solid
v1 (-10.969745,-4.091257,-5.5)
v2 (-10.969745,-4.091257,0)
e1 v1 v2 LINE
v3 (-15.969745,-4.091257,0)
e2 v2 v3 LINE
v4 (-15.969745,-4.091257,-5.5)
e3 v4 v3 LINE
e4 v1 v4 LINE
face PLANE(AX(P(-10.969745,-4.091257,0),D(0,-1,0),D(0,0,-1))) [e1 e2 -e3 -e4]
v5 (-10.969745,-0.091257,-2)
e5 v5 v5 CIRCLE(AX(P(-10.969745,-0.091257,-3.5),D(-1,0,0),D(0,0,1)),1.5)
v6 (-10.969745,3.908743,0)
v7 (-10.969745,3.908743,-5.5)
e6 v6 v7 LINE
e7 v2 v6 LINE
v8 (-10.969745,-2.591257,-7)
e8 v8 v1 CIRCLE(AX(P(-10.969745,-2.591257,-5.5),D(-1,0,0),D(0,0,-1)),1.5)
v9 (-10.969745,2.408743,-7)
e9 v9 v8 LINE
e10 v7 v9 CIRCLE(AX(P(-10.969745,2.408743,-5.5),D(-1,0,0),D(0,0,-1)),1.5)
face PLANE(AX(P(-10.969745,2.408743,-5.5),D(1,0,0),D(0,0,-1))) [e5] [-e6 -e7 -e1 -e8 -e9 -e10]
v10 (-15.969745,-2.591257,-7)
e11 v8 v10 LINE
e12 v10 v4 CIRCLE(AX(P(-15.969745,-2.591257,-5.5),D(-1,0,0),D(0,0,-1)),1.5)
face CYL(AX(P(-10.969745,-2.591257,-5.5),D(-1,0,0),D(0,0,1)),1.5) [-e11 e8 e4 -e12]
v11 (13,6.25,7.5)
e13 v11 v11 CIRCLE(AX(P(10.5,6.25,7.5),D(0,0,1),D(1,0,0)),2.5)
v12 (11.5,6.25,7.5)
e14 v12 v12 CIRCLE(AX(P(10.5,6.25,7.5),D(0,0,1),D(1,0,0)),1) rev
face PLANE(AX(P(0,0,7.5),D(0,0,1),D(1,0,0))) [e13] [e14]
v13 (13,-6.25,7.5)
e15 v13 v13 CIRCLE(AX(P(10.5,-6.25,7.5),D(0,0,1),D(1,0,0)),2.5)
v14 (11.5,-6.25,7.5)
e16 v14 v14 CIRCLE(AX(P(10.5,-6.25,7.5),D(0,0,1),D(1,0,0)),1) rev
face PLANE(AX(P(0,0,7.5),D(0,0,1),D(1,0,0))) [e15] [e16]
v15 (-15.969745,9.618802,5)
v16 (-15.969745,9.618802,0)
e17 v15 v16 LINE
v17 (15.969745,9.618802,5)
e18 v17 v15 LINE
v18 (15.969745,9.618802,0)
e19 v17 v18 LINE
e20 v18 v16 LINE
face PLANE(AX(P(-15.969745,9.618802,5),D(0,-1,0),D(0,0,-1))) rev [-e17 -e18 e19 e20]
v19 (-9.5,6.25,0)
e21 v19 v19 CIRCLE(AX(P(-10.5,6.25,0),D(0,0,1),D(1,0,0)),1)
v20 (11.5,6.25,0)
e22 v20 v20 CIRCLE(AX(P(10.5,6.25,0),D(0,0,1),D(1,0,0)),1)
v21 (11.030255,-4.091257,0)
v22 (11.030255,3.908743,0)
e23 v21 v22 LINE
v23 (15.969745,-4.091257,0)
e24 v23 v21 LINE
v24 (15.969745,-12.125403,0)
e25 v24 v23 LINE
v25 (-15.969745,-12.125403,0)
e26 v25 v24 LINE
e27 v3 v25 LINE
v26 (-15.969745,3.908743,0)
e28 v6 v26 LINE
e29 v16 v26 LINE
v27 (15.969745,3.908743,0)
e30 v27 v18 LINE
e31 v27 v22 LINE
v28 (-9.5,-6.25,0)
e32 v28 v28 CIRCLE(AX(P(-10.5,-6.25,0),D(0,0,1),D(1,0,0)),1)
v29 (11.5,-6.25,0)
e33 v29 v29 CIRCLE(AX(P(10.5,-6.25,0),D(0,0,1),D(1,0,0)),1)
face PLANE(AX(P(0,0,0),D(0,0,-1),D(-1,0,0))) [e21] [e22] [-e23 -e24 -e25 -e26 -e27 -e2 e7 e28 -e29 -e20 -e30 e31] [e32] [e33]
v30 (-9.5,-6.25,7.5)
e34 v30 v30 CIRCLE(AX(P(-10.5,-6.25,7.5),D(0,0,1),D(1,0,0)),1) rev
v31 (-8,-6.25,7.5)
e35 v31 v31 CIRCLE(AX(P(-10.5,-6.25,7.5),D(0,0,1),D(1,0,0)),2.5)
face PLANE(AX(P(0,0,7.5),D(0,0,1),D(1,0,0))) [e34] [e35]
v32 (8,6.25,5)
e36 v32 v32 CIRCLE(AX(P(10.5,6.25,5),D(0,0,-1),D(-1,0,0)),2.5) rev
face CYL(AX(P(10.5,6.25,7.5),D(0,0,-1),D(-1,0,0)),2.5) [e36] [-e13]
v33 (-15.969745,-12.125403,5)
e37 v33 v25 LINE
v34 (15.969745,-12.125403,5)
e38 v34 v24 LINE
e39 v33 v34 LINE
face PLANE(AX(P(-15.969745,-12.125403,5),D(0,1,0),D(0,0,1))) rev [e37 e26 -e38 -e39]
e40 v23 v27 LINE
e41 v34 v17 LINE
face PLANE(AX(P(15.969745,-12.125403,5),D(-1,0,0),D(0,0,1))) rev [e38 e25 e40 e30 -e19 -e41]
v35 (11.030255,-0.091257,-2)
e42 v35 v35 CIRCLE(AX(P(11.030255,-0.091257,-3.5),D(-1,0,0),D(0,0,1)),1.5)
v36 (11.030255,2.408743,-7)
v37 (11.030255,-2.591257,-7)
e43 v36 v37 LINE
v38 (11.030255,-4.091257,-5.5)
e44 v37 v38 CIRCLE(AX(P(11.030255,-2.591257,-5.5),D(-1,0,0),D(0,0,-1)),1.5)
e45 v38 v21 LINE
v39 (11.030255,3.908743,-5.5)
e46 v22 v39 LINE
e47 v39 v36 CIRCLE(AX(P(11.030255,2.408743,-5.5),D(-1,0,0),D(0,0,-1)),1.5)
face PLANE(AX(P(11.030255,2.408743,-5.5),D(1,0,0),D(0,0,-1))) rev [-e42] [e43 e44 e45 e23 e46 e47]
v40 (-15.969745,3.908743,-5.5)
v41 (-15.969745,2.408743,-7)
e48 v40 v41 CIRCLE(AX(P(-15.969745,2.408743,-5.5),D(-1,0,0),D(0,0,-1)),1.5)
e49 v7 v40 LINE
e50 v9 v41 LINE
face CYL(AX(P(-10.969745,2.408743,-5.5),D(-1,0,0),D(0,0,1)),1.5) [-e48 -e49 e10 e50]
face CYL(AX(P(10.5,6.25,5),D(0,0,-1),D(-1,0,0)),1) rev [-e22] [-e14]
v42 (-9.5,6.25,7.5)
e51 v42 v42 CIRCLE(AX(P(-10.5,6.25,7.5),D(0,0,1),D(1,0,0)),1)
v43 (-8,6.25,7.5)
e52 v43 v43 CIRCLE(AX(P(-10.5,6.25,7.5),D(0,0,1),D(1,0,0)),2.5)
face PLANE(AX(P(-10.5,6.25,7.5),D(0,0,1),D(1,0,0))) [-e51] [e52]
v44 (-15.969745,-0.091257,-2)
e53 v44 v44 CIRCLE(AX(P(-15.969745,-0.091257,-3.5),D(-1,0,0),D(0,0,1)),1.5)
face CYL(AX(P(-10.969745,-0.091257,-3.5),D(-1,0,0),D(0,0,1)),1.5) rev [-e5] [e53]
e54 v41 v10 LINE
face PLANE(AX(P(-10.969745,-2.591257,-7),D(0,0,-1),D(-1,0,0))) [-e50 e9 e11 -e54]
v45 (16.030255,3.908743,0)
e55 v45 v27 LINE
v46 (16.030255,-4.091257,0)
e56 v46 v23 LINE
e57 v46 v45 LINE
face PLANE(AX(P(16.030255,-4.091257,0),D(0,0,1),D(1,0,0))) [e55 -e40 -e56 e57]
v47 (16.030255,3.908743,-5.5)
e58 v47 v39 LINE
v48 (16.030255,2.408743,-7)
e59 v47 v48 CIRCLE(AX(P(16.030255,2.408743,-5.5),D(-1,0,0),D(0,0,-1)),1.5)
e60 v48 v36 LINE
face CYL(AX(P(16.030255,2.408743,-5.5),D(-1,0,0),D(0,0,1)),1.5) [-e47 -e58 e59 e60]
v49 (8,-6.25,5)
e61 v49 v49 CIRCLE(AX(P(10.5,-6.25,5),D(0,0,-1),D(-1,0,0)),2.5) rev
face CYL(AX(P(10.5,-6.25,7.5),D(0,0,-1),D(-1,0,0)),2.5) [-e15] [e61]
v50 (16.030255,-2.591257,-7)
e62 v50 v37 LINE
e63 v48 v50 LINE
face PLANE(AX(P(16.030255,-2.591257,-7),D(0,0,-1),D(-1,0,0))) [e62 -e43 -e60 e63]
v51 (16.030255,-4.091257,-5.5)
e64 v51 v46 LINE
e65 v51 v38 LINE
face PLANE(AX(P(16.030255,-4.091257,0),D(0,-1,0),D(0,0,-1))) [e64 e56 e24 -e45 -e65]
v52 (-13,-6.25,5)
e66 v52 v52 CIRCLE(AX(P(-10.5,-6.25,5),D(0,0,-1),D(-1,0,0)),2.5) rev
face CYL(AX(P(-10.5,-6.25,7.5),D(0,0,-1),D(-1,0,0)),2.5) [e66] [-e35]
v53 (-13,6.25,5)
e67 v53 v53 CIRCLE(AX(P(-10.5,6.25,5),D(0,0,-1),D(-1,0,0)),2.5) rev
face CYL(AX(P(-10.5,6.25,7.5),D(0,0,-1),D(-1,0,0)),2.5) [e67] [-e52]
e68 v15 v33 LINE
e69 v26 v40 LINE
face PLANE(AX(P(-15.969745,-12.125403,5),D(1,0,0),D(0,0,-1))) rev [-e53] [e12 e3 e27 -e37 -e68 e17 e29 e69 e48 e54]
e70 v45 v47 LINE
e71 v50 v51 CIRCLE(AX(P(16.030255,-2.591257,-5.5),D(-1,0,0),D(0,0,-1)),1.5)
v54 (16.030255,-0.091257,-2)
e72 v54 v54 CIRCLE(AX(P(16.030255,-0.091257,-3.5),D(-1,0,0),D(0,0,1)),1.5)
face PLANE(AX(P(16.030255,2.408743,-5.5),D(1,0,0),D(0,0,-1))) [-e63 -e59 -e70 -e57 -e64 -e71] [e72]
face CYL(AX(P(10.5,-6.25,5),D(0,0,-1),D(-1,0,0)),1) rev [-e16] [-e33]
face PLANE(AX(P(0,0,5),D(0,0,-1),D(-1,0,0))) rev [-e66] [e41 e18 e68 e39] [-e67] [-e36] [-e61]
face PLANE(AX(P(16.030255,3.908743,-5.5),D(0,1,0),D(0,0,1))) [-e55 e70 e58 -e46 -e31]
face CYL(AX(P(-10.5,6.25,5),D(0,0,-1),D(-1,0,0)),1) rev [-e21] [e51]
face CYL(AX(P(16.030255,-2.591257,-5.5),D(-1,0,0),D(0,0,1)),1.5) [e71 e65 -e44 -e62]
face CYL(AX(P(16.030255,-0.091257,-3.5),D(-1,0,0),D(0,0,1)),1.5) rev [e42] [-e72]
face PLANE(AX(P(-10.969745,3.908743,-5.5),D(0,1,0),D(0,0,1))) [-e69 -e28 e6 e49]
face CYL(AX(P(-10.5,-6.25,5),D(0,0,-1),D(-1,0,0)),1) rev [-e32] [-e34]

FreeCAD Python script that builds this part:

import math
import FreeCAD as App
import Part
import Sketcher

V = App.Vector


def add_polygon(sketch, points):
    """Adds a closed chain of lines whose ends are joined by coincident constraints."""
    first, n = sketch.GeometryCount, len(points)
    for a, b in zip(points, points[1:] + points[:1]):
        sketch.addGeometry(Part.LineSegment(App.Vector(*a, 0), App.Vector(*b, 0)), False)
    for i in range(n):
        sketch.addConstraint(Sketcher.Constraint("Coincident", first + i, 2, first + (i + 1) % n, 1))

doc = App.newDocument("Part")
body = doc.addObject("PartDesign::Body", "Body")

sketch1 = body.newObject("Sketcher::SketchObject", "Sketch")
sketch1.AttachmentSupport = (doc.getObject("XY_Plane"), [""])
sketch1.MapMode = "FlatFace"
add_polygon(sketch1, [(-15.969745, 9.618802), (-15.969745, -12.125403), (15.969745, -12.125403), (15.969745, 9.618802)])
sketch1.addGeometry(Part.Circle(V(-10.5, -6.25, 0), V(0, 0, 1), 1), False)
sketch1.addGeometry(Part.Circle(V(10.5, -6.25, 0), V(0, 0, 1), 1), False)
sketch1.addGeometry(Part.Circle(V(-10.5, 6.25, 0), V(0, 0, 1), 1), False)
sketch1.addGeometry(Part.Circle(V(10.5, 6.25, 0), V(0, 0, 1), 1), False)
sketch1.addConstraint([
    Sketcher.Constraint("Vertical", 0),
    Sketcher.Constraint("Horizontal", 1),
    Sketcher.Constraint("Vertical", 2),
    Sketcher.Constraint("Horizontal", 3),
    Sketcher.Constraint("Equal", 4, 5),
    Sketcher.Constraint("Equal", 5, 6),
    Sketcher.Constraint("Equal", 6, 7),
    Sketcher.Constraint("Symmetric", 5, 3, 6, 3, -1, 1),
    Sketcher.Constraint("Symmetric", 4, 3, 7, 3, -1, 1),
    Sketcher.Constraint("Symmetric", 4, 3, 5, 3, -2),
    Sketcher.Constraint("Diameter", 4, 2.0),
    Sketcher.Constraint("DistanceX", 4, 3, 5, 3, 21.0),
    Sketcher.Constraint("DistanceY", 4, 3, 6, 3, 12.5),
    Sketcher.Constraint("DistanceX", 1, 1, 1, 2, 31.93949),
    Sketcher.Constraint("DistanceY", -1, 1, 2, 2, 9.618802),
    Sketcher.Constraint("DistanceY", 0, 2, 0, 1, 21.744204),
    Sketcher.Constraint("DistanceX", 0, 2, -1, 1, 15.969745),
])
pad1 = body.newObject("PartDesign::Pad", "Pad")
pad1.Profile = sketch1
pad1.Length = 5

sketch2 = body.newObject("Sketcher::SketchObject", "Sketch001")
sketch2.AttachmentSupport = (doc.getObject("XY_Plane"), [""])
sketch2.MapMode = "FlatFace"
sketch2.AttachmentOffset = App.Placement(V(0, 0, 5), App.Rotation())
sketch2.addGeometry([
    Part.Circle(V(-10.5, 6.25, 0), V(0, 0, 1), 2.5),
    Part.Circle(V(-10.5, 6.25, 0), V(0, 0, 1), 1),
    Part.Circle(V(10.5, 6.25, 0), V(0, 0, 1), 2.5),
    Part.Circle(V(10.5, 6.25, 0), V(0, 0, 1), 1),
    Part.Circle(V(10.5, -6.25, 0), V(0, 0, 1), 2.5),
    Part.Circle(V(10.5, -6.25, 0), V(0, 0, 1), 1),
    Part.Circle(V(-10.5, -6.25, 0), V(0, 0, 1), 2.5),
    Part.Circle(V(-10.5, -6.25, 0), V(0, 0, 1), 1),
], False)
sketch2.addConstraint([
    Sketcher.Constraint("Coincident", 1, 3, 0, 3),
    Sketcher.Constraint("Coincident", 3, 3, 2, 3),
    Sketcher.Constraint("Coincident", 5, 3, 4, 3),
    Sketcher.Constraint("Coincident", 7, 3, 6, 3),
    Sketcher.Constraint("Equal", 0, 2),
    Sketcher.Constraint("Equal", 1, 3),
    Sketcher.Constraint("Equal", 2, 4),
    Sketcher.Constraint("Equal", 3, 5),
    Sketcher.Constraint("Equal", 4, 6),
    Sketcher.Constraint("Equal", 5, 7),
    Sketcher.Constraint("Symmetric", 0, 3, 4, 3, -1, 1),
    Sketcher.Constraint("Symmetric", 2, 3, 6, 3, -1, 1),
    Sketcher.Constraint("Symmetric", 0, 3, 2, 3, -2),
    Sketcher.Constraint("Diameter", 0, 5.0),
    Sketcher.Constraint("Diameter", 1, 2.0),
    Sketcher.Constraint("DistanceX", 0, 3, 2, 3, 21.0),
    Sketcher.Constraint("DistanceY", 4, 3, 2, 3, 12.5),
])
pad2 = body.newObject("PartDesign::Pad", "Pad001")
pad2.Profile = sketch2
pad2.Length = 2.5

sketch3 = body.newObject("Sketcher::SketchObject", "Sketch002")
sketch3.AttachmentSupport = (doc.getObject("YZ_Plane"), [""])
sketch3.MapMode = "FlatFace"
sketch3.AttachmentOffset = App.Placement(V(0, 0, -15.969745), App.Rotation())
sketch3.addGeometry([
    Part.LineSegment(V(-4.091257, -5.5, 0), V(-4.091257, 0, 0)),
    Part.LineSegment(V(-4.091257, 0, 0), V(3.908743, 0, 0)),
    Part.LineSegment(V(3.908743, 0, 0), V(3.908743, -5.5, 0)),
    Part.ArcOfCircle(Part.Circle(V(2.408743, -5.5, 0), V(0, 0, 1), 1.5), math.radians(-90), math.radians(0)),
    Part.LineSegment(V(2.408743, -7, 0), V(-2.591257, -7, 0)),
    Part.ArcOfCircle(Part.Circle(V(-2.591257, -5.5, 0), V(0, 0, 1), 1.5), math.radians(180), math.radians(270)),
    Part.Circle(V(-0.091257, -3.5, 0), V(0, 0, 1), 1.5),
], False)
sketch3.addConstraint([
    Sketcher.Constraint("Coincident", 0, 2, 1, 1),
    Sketcher.Constraint("Coincident", 1, 2, 2, 1),
    Sketcher.Constraint("Tangent", 2, 2, 3, 2),
    Sketcher.Constraint("Tangent", 3, 1, 4, 1),
    Sketcher.Constraint("Tangent", 4, 2, 5, 2),
    Sketcher.Constraint("Tangent", 5, 1, 0, 1),
    Sketcher.Constraint("Vertical", 0),
    Sketcher.Constraint("Horizontal", 1),
    Sketcher.Constraint("Vertical", 2),
    Sketcher.Constraint("Horizontal", 4),
    Sketcher.Constraint("Equal", 3, 5),
    Sketcher.Constraint("Equal", 5, 6),
    Sketcher.Constraint("PointOnObject", 0, 2, -1),
    Sketcher.Constraint("Diameter", 6, 3.0),
    Sketcher.Constraint("DistanceX", 1, 1, 1, 2, 8.0),
    Sketcher.Constraint("DistanceY", 0, 1, 0, 2, 5.5),
    Sketcher.Constraint("DistanceY", 3, 3, 6, 3, 2.0),
    Sketcher.Constraint("DistanceX", 0, 2, 6, 3, 4.0),
    Sketcher.Constraint("DistanceX", -1, 1, 3, 3, 2.408743),
])
pad3 = body.newObject("PartDesign::Pad", "Pad002")
pad3.Profile = sketch3
pad3.Length = 5
doc.recompute()

linearpattern = body.newObject("PartDesign::LinearPattern", "LinearPattern")
linearpattern.Originals = [pad3]
linearpattern.Direction = (doc.getObject("X_Axis"), [""])
linearpattern.Mode = "offset"
linearpattern.Offset = 27
linearpattern.Occurrences = 2
body.Tip = linearpattern

doc.recompute()
